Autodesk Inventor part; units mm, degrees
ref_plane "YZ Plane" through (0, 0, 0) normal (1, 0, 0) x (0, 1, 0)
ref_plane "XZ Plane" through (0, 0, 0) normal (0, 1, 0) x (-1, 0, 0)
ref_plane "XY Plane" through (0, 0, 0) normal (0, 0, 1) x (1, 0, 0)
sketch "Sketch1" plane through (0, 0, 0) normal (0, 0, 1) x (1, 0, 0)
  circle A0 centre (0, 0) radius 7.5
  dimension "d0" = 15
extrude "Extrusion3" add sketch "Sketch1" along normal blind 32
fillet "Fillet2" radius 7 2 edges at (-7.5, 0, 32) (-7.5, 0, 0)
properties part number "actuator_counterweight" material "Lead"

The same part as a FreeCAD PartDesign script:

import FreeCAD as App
import Part
import Sketcher
Q = App.Units.Quantity


def edges_at(feature, points):
    """Names of the edges that pass closest to the given points."""
    edges = feature.Shape.Edges
    near = lambda p: min(range(len(edges)), key=lambda i: edges[i].distToShape(Part.Vertex(*p))[0])
    return sorted({f"Edge{near(p) + 1}" for p in points})

doc = App.newDocument("Part")
body = doc.addObject("PartDesign::Body", "Body")

sketch1 = body.newObject("Sketcher::SketchObject", "Sketch")
sketch1.AttachmentSupport = (doc.getObject("XY_Plane"), [""])
sketch1.MapMode = "FlatFace"
sketch1.addGeometry(Part.Circle(App.Vector(0, 0, 0), App.Vector(0, 0, 1), 8), False)
sketch1.addConstraint(Sketcher.Constraint("Coincident", 0, 3, -1, 1))
sketch1.addConstraint(Sketcher.Constraint("Diameter", 0, Q("15 mm")))
pad1 = body.newObject("PartDesign::Pad", "Pad")
pad1.Profile = sketch1
pad1.Length = 32
doc.recompute()

fillet = body.newObject("PartDesign::Fillet", "Fillet")
fillet.Base = (pad1, edges_at(pad1, [(-7.5, 0, 32), (-7.5, 0, 0)]))
fillet.Radius = 7

doc.recompute()
